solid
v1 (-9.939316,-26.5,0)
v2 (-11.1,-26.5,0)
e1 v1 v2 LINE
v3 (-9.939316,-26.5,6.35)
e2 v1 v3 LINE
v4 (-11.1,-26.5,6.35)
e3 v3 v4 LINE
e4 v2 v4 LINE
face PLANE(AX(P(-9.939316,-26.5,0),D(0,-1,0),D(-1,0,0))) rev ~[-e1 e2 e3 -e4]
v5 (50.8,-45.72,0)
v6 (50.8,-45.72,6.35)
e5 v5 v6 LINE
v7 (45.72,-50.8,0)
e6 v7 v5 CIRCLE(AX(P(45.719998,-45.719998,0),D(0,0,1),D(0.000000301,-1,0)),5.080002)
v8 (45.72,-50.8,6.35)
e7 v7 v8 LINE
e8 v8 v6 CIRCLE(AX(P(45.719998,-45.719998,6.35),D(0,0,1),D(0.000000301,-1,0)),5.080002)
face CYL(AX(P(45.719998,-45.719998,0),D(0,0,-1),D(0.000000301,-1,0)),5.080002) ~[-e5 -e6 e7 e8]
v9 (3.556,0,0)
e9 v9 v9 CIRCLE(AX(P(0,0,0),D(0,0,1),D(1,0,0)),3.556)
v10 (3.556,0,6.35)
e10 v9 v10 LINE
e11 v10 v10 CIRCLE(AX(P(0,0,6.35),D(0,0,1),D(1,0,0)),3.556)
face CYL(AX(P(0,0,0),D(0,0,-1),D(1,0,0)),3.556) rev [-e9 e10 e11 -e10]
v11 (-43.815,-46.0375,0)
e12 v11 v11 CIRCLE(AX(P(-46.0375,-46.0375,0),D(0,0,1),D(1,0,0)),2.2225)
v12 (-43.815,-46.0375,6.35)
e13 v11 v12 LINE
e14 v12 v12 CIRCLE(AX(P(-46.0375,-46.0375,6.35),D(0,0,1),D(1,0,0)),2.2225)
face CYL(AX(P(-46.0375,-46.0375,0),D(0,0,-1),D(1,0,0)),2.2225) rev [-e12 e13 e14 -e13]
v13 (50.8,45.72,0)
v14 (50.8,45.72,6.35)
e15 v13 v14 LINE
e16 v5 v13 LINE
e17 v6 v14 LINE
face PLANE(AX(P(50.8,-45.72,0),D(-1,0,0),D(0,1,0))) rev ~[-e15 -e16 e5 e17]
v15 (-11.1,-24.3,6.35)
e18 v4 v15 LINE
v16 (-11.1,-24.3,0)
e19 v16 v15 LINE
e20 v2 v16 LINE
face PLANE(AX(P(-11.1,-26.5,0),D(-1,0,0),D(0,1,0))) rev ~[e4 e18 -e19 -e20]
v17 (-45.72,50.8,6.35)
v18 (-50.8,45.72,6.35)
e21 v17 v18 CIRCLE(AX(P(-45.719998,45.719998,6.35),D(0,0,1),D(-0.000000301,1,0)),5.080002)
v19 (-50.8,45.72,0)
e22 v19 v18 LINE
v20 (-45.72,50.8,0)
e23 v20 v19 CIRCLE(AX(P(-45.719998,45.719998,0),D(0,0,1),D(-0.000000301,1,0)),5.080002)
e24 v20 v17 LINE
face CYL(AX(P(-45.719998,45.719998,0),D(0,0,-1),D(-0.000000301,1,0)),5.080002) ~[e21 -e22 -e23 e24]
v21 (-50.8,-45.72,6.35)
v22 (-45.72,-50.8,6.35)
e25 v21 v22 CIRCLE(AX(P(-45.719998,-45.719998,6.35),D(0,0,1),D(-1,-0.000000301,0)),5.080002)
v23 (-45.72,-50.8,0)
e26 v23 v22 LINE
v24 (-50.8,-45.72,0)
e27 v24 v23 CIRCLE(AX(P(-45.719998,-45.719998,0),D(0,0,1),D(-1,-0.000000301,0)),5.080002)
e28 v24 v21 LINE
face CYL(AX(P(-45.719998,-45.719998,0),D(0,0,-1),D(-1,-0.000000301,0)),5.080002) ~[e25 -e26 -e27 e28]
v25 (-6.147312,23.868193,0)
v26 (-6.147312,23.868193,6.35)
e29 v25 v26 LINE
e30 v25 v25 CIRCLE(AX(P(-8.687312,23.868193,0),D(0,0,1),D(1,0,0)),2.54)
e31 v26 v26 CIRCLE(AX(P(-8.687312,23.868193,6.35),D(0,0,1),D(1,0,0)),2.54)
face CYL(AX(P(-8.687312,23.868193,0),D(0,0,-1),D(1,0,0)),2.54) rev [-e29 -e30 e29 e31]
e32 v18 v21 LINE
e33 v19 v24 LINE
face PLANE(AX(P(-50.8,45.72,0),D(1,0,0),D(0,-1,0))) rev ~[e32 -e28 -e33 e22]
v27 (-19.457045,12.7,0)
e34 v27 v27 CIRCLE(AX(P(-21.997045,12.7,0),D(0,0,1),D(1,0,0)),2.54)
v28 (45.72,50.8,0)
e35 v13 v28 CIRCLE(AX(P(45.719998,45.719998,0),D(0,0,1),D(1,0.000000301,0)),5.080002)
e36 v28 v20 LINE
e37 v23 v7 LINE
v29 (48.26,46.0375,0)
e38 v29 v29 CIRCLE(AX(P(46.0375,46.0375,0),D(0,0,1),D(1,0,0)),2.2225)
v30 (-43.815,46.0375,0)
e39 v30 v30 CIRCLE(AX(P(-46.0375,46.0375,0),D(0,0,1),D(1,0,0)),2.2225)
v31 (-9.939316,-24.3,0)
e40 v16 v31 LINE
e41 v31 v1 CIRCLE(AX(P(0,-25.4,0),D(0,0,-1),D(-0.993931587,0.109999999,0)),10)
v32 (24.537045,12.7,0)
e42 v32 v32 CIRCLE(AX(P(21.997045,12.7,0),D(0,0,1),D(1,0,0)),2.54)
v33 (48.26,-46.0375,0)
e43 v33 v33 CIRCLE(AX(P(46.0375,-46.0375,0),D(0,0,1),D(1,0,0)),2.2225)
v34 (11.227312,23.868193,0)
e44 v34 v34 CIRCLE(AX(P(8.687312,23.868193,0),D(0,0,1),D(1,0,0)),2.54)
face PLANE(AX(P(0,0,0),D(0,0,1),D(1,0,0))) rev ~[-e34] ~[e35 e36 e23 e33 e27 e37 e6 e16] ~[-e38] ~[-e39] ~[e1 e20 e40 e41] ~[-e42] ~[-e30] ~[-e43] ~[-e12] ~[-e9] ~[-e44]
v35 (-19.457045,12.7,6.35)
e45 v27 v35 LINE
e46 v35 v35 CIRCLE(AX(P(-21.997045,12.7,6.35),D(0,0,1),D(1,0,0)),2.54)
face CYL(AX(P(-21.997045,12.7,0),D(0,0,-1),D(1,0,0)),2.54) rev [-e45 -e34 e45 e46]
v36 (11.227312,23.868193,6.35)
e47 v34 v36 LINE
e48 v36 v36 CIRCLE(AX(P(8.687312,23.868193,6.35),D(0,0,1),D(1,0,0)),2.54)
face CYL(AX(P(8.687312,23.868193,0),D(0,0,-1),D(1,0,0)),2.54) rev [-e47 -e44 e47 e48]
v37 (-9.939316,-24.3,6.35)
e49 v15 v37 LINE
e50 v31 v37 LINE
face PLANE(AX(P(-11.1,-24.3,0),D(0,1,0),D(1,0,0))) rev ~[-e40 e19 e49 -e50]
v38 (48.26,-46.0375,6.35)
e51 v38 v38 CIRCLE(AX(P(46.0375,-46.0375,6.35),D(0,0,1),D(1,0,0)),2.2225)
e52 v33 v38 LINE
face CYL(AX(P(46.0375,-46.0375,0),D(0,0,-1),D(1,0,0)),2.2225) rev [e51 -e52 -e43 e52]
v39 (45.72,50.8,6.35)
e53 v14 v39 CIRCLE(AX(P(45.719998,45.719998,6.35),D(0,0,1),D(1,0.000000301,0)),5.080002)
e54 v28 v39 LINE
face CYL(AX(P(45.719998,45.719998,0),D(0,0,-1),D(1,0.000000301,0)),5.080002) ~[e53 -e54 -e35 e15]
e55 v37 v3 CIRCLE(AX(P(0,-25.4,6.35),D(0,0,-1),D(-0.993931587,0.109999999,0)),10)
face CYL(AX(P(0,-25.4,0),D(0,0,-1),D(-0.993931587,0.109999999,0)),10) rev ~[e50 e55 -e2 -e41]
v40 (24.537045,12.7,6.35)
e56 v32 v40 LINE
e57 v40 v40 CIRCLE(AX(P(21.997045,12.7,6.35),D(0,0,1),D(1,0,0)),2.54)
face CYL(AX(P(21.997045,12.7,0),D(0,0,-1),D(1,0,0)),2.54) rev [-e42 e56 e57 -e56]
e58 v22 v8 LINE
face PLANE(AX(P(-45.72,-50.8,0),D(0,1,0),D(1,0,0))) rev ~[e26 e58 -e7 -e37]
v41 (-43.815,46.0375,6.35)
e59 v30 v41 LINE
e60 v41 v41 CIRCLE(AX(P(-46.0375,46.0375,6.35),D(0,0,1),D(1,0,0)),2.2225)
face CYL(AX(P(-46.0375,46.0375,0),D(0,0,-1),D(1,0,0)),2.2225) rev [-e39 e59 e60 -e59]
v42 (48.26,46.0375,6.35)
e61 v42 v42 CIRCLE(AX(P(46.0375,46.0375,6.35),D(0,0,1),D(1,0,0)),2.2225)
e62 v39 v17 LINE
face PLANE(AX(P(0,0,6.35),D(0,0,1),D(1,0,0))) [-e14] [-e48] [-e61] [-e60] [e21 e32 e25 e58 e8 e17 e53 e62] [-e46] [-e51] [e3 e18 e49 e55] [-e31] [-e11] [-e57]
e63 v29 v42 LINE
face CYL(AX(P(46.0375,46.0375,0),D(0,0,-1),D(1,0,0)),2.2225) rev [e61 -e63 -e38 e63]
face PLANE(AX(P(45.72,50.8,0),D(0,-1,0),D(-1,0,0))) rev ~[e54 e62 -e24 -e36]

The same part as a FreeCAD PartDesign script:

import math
import FreeCAD as App
import Part
import Sketcher
Q = App.Units.Quantity

doc = App.newDocument("Part")
body = doc.addObject("PartDesign::Body", "Body")

# Sketch on XY plane
sketch1 = body.newObject("Sketcher::SketchObject", "Sketch")
sketch1.AttachmentSupport = (doc.getObject("XY_Plane"), [""])
sketch1.MapMode = "FlatFace"
sketch1.addGeometry([
    Part.LineSegment(App.Vector(45.72, 50.8, 0), App.Vector(-45.72, 50.8, 0)),  # 0
    Part.ArcOfCircle(Part.Circle(App.Vector(-45.719998, 45.719998, 0), App.Vector(0, 0, 1), 5.080002), math.radians(90.000017), math.radians(179.999983)),  # 1
    Part.LineSegment(App.Vector(-50.8, 45.72, 0), App.Vector(-50.8, -45.72, 0)),  # 2
    Part.ArcOfCircle(Part.Circle(App.Vector(-45.719998, -45.719998, 0), App.Vector(0, 0, 1), 5.080002), math.radians(-179.999983), math.radians(-90.000017)),  # 3
    Part.LineSegment(App.Vector(-45.72, -50.8, 0), App.Vector(45.72, -50.8, 0)),  # 4
    Part.ArcOfCircle(Part.Circle(App.Vector(45.719998, -45.719998, 0), App.Vector(0, 0, 1), 5.080002), math.radians(-89.999983), math.radians(-0.000017)),  # 5
    Part.LineSegment(App.Vector(50.8, -45.72, 0), App.Vector(50.8, 45.72, 0)),  # 6
    Part.ArcOfCircle(Part.Circle(App.Vector(45.719998, 45.719998, 0), App.Vector(0, 0, 1), 5.080002), math.radians(0.000017), math.radians(89.999983)),  # 7
    Part.Circle(App.Vector(-46.0375, -46.0375, 0), App.Vector(0, 0, 1), 2.2225),  # 8
    Part.LineSegment(App.Vector(-11.1, -24.3, 0), App.Vector(-9.939316, -24.3, 0)),  # 9
    Part.ArcOfCircle(Part.Circle(App.Vector(0, -25.4, 0), App.Vector(0, 0, 1), 10), math.radians(-173.684684), math.radians(173.684684)),  # 10
    Part.LineSegment(App.Vector(-9.939316, -26.5, 0), App.Vector(-11.1, -26.5, 0)),  # 11
    Part.LineSegment(App.Vector(-11.1, -26.5, 0), App.Vector(-11.1, -24.3, 0)),  # 12
    Part.Circle(App.Vector(46.0375, -46.0375, 0), App.Vector(0, 0, 1), 2.2225),  # 13
    Part.Circle(App.Vector(-21.997045, 12.7, 0), App.Vector(0, 0, 1), 2.54),  # 14
    Part.Circle(App.Vector(-8.687312, 23.868193, 0), App.Vector(0, 0, 1), 2.54),  # 15
    Part.Circle(App.Vector(-46.0375, 46.0375, 0), App.Vector(0, 0, 1), 2.2225),  # 16
    Part.Circle(App.Vector(0, 0, 0), App.Vector(0, 0, 1), 3.556),  # 17
    Part.Circle(App.Vector(8.687312, 23.868193, 0), App.Vector(0, 0, 1), 2.54),  # 18
    Part.Circle(App.Vector(21.997045, 12.7, 0), App.Vector(0, 0, 1), 2.54),  # 19
    Part.Circle(App.Vector(46.0375, 46.0375, 0), App.Vector(0, 0, 1), 2.2225),  # 20
], False)
sketch1.addConstraint([
    Sketcher.Constraint("Tangent", 0, 2, 1, 1),
    Sketcher.Constraint("Tangent", 1, 2, 2, 1),
    Sketcher.Constraint("Tangent", 2, 2, 3, 1),
    Sketcher.Constraint("Tangent", 3, 2, 4, 1),
    Sketcher.Constraint("Tangent", 4, 2, 5, 1),
    Sketcher.Constraint("Tangent", 5, 2, 6, 1),
    Sketcher.Constraint("Tangent", 6, 2, 7, 1),
    Sketcher.Constraint("Tangent", 7, 2, 0, 1),
    Sketcher.Constraint("Coincident", 9, 2, 10, 2),
    Sketcher.Constraint("Coincident", 10, 1, 11, 1),
    Sketcher.Constraint("Coincident", 11, 2, 12, 1),
    Sketcher.Constraint("Coincident", 12, 2, 9, 1),
    Sketcher.Constraint("Horizontal", 0),
    Sketcher.Constraint("Vertical", 2),
    Sketcher.Constraint("Horizontal", 4),
    Sketcher.Constraint("Vertical", 6),
    Sketcher.Constraint("Horizontal", 9),
    Sketcher.Constraint("Horizontal", 11),
    Sketcher.Constraint("Vertical", 12),
    Sketcher.Constraint("Coincident", 17, 3, -1, 1),
    Sketcher.Constraint("Equal", 1, 3),
    Sketcher.Constraint("Equal", 3, 5),
    Sketcher.Constraint("Equal", 5, 7),
    Sketcher.Constraint("Equal", 8, 13),
    Sketcher.Constraint("Equal", 14, 15),
    Sketcher.Constraint("Equal", 13, 16),
    Sketcher.Constraint("Equal", 15, 18),
    Sketcher.Constraint("Equal", 18, 19),
    Sketcher.Constraint("Equal", 16, 20),
    Sketcher.Constraint("Symmetric", 1, 3, 5, 3, -1, 1),
    Sketcher.Constraint("Symmetric", 13, 3, 16, 3, -1, 1),
    Sketcher.Constraint("Symmetric", 8, 3, 20, 3, -1, 1),
    Sketcher.Constraint("Symmetric", 8, 3, 13, 3, -2),
    Sketcher.Constraint("Symmetric", 15, 3, 18, 3, -2),
    Sketcher.Constraint("Symmetric", 14, 3, 19, 3, -2),
    Sketcher.Constraint("PointOnObject", 10, 3, -2),
    Sketcher.Constraint("Vertical", 9, 2, 10, 1),
    Sketcher.Constraint("Equal", 4, 2),
    Sketcher.Constraint("Diameter", 14, Q("0.2 in")),
    Sketcher.Constraint("Radius", 1, Q("0.2000001 in")),
    Sketcher.Constraint("Diameter", 17, Q("0.28 in")),
    Sketcher.Constraint("Diameter", 8, Q("0.175 in")),
    Sketcher.Constraint("DistanceX", 0, 2, 0, 1, Q("3.6 in")),
    Sketcher.Constraint("DistanceY", 10, 3, -1, 1, Q("1 in")),
    Sketcher.Constraint("DistanceY", -1, 1, 14, 3, Q("0.5 in")),
    Sketcher.Constraint("Radius", 10, 10.0),
    Sketcher.Constraint("DistanceX", 8, 3, -1, 1, Q("1.8125 in")),
    Sketcher.Constraint("DistanceY", 8, 3, -1, 1, Q("1.8125 in")),
    Sketcher.Constraint("DistanceY", 12, 1, 12, 2, 2.2),
    Sketcher.Constraint("DistanceX", 11, 2, -1, 1, 11.1),
    Sketcher.Constraint("DistanceX", 15, 3, 10, 3, 8.687312),
    Sketcher.Constraint("DistanceY", 3, 3, 15, 3, 69.588191),
    Sketcher.Constraint("DistanceX", 14, 3, 19, 3, 43.99409),
])
pad1 = body.newObject("PartDesign::Pad", "Pad")
pad1.Profile = sketch1
pad1.Length = Q("0.25 in")

doc.recompute()
